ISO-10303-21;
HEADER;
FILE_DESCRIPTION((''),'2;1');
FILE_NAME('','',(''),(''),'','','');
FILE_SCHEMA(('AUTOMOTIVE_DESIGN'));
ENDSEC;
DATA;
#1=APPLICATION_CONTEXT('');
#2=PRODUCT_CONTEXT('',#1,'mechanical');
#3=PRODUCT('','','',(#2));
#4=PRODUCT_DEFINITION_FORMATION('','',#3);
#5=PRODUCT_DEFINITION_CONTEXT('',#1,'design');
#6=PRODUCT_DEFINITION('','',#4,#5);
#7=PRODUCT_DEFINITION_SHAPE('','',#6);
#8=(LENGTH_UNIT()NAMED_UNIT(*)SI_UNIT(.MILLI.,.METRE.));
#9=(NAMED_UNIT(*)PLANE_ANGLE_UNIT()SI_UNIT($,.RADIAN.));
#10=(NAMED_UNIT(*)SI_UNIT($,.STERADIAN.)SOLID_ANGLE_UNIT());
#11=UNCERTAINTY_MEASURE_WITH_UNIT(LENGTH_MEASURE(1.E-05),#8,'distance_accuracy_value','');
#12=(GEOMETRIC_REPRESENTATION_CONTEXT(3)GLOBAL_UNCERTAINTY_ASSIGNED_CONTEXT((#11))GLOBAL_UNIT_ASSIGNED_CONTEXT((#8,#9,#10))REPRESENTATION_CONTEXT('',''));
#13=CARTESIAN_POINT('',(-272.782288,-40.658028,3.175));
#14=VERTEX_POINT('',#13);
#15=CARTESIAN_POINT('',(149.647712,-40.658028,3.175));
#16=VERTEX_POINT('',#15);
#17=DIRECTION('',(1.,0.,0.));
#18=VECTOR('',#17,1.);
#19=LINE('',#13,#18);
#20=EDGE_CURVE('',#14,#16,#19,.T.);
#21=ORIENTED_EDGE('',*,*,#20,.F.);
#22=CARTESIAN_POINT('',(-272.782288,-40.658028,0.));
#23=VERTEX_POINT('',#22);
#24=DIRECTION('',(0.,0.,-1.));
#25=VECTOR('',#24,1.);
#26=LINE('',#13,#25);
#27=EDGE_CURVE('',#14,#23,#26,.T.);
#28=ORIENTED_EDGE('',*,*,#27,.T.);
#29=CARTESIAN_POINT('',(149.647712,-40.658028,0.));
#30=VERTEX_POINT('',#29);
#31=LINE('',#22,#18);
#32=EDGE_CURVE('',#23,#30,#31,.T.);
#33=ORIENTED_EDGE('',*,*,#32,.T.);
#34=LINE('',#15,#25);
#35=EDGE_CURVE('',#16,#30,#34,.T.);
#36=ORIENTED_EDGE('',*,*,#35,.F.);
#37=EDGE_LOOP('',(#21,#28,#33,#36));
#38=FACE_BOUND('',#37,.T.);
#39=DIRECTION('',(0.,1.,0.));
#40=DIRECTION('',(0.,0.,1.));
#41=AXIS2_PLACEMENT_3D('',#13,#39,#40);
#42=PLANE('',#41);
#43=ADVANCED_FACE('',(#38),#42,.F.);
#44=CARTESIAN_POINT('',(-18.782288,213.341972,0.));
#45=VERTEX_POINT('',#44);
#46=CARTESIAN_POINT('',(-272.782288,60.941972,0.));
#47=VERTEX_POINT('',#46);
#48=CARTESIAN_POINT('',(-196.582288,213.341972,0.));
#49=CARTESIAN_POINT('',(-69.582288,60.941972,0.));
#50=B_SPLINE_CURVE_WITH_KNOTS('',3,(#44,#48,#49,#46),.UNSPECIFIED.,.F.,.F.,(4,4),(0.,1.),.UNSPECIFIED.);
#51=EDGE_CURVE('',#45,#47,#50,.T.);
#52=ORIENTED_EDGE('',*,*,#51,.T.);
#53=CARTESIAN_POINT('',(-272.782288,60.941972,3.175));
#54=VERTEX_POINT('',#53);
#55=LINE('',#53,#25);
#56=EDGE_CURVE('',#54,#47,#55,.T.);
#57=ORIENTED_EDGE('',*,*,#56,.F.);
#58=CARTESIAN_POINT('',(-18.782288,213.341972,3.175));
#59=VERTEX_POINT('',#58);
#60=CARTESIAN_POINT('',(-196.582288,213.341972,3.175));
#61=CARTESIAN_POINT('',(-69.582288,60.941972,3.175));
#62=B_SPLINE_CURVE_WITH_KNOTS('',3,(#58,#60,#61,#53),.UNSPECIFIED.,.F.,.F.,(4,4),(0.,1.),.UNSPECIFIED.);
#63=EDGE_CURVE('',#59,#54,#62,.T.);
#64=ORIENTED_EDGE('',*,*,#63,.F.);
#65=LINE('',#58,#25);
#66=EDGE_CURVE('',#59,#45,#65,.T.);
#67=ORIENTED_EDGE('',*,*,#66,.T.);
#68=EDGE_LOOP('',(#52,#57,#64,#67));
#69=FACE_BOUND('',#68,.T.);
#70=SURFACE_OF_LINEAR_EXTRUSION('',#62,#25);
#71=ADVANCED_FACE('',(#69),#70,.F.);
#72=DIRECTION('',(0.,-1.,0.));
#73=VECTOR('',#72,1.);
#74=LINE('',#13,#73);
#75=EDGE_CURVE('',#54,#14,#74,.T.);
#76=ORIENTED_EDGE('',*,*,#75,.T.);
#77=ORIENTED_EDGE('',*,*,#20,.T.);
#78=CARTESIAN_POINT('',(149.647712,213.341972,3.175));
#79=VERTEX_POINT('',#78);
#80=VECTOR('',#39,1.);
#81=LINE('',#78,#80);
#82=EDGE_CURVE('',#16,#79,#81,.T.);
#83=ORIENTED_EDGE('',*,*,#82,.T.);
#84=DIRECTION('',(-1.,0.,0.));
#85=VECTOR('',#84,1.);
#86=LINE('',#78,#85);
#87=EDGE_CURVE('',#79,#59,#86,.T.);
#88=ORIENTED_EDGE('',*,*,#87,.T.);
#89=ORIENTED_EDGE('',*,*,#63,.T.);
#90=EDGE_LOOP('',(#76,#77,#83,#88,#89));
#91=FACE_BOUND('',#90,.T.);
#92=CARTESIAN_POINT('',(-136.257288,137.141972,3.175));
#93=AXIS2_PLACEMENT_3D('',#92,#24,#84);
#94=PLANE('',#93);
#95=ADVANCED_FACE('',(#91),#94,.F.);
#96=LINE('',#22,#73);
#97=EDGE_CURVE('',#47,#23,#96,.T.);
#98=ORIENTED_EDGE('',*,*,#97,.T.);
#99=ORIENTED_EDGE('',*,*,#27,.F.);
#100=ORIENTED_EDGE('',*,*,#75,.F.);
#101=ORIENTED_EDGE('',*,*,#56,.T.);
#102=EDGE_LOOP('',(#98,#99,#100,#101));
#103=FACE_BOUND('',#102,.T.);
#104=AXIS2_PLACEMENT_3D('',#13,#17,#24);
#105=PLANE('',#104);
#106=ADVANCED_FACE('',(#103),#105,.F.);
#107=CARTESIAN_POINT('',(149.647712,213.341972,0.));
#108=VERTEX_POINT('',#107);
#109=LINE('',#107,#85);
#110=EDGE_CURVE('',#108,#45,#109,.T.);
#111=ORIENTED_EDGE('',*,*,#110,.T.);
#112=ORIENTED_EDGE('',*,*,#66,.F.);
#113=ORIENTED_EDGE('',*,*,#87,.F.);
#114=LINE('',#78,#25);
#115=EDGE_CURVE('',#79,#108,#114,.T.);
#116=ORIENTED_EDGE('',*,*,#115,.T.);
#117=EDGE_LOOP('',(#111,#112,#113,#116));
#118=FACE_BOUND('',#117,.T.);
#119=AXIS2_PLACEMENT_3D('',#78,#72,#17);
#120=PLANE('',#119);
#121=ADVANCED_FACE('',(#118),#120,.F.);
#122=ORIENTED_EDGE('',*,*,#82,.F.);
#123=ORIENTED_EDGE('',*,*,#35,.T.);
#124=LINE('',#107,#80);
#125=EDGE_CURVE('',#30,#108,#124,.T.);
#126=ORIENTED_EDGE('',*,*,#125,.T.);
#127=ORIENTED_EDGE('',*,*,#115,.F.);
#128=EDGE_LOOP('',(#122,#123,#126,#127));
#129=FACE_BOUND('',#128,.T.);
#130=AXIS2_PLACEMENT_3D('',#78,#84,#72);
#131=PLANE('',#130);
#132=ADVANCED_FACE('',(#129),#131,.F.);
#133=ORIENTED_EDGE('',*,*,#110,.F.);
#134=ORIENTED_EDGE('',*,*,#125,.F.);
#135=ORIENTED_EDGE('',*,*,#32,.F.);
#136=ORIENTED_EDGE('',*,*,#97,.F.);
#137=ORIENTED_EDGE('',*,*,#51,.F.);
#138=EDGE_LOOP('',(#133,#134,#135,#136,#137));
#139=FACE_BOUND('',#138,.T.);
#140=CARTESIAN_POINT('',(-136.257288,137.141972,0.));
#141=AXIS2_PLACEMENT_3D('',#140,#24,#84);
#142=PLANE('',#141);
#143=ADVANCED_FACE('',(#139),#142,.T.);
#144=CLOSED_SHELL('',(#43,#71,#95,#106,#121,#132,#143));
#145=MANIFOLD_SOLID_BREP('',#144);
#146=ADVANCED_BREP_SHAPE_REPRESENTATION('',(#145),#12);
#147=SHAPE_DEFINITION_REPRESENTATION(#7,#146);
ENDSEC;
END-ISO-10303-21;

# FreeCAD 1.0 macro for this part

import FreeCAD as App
import Part
import Sketcher
from FreeCAD import Vector
Q = App.Units.Quantity

doc = App.newDocument("Part")
body = doc.addObject("PartDesign::Body", "Body")

sketch1 = doc.addObject("Sketcher::SketchObject", "Sketch")
body.addObject(sketch1)
sketch1.AttachmentSupport = (doc.XY_Plane, [""])
sketch1.MapMode = "FlatFace"
sketch1.addGeometry([
    Part.LineSegment(Vector(149.647712, 213.341972, 0), Vector(-18.782288, 213.341972, 0)),
    Part.BSplineCurve([Vector(-18.782288, 213.341972, 0), Vector(-196.582288, 213.341972, 0), Vector(-69.582288, 60.941972, 0), Vector(-272.782288, 60.941972, 0)], [4, 4], [0, 1], False, 3, [1, 1, 1, 1], False),
    Part.LineSegment(Vector(-272.782288, 60.941972, 0), Vector(-272.782288, -40.658028, 0)),
    Part.LineSegment(Vector(-272.782288, -40.658028, 0), Vector(149.647712, -40.658028, 0)),
    Part.LineSegment(Vector(149.647712, -40.658028, 0), Vector(149.647712, 213.341972, 0)),
], False)
sketch1.addConstraint([
    Sketcher.Constraint("Block", 1),
    Sketcher.Constraint("Coincident", 0, 2, 1, 1),
    Sketcher.Constraint("Coincident", 1, 2, 2, 1),
    Sketcher.Constraint("Coincident", 2, 2, 3, 1),
    Sketcher.Constraint("Coincident", 3, 2, 4, 1),
    Sketcher.Constraint("Coincident", 4, 2, 0, 1),
    Sketcher.Constraint("Horizontal", 0),
    Sketcher.Constraint("Vertical", 2),
    Sketcher.Constraint("Horizontal", 3),
    Sketcher.Constraint("Vertical", 4),
    Sketcher.Constraint("DistanceY", 2, 2, 2, 1, Q("4 in")),
    Sketcher.Constraint("DistanceX", 0, 2, 0, 1, Q("168.43 mm")),
])
pad1 = doc.addObject("PartDesign::Pad", "Pad")
body.addObject(pad1)
pad1.Profile = sketch1
pad1.Length = Q("0.125 in")

doc.recompute()
